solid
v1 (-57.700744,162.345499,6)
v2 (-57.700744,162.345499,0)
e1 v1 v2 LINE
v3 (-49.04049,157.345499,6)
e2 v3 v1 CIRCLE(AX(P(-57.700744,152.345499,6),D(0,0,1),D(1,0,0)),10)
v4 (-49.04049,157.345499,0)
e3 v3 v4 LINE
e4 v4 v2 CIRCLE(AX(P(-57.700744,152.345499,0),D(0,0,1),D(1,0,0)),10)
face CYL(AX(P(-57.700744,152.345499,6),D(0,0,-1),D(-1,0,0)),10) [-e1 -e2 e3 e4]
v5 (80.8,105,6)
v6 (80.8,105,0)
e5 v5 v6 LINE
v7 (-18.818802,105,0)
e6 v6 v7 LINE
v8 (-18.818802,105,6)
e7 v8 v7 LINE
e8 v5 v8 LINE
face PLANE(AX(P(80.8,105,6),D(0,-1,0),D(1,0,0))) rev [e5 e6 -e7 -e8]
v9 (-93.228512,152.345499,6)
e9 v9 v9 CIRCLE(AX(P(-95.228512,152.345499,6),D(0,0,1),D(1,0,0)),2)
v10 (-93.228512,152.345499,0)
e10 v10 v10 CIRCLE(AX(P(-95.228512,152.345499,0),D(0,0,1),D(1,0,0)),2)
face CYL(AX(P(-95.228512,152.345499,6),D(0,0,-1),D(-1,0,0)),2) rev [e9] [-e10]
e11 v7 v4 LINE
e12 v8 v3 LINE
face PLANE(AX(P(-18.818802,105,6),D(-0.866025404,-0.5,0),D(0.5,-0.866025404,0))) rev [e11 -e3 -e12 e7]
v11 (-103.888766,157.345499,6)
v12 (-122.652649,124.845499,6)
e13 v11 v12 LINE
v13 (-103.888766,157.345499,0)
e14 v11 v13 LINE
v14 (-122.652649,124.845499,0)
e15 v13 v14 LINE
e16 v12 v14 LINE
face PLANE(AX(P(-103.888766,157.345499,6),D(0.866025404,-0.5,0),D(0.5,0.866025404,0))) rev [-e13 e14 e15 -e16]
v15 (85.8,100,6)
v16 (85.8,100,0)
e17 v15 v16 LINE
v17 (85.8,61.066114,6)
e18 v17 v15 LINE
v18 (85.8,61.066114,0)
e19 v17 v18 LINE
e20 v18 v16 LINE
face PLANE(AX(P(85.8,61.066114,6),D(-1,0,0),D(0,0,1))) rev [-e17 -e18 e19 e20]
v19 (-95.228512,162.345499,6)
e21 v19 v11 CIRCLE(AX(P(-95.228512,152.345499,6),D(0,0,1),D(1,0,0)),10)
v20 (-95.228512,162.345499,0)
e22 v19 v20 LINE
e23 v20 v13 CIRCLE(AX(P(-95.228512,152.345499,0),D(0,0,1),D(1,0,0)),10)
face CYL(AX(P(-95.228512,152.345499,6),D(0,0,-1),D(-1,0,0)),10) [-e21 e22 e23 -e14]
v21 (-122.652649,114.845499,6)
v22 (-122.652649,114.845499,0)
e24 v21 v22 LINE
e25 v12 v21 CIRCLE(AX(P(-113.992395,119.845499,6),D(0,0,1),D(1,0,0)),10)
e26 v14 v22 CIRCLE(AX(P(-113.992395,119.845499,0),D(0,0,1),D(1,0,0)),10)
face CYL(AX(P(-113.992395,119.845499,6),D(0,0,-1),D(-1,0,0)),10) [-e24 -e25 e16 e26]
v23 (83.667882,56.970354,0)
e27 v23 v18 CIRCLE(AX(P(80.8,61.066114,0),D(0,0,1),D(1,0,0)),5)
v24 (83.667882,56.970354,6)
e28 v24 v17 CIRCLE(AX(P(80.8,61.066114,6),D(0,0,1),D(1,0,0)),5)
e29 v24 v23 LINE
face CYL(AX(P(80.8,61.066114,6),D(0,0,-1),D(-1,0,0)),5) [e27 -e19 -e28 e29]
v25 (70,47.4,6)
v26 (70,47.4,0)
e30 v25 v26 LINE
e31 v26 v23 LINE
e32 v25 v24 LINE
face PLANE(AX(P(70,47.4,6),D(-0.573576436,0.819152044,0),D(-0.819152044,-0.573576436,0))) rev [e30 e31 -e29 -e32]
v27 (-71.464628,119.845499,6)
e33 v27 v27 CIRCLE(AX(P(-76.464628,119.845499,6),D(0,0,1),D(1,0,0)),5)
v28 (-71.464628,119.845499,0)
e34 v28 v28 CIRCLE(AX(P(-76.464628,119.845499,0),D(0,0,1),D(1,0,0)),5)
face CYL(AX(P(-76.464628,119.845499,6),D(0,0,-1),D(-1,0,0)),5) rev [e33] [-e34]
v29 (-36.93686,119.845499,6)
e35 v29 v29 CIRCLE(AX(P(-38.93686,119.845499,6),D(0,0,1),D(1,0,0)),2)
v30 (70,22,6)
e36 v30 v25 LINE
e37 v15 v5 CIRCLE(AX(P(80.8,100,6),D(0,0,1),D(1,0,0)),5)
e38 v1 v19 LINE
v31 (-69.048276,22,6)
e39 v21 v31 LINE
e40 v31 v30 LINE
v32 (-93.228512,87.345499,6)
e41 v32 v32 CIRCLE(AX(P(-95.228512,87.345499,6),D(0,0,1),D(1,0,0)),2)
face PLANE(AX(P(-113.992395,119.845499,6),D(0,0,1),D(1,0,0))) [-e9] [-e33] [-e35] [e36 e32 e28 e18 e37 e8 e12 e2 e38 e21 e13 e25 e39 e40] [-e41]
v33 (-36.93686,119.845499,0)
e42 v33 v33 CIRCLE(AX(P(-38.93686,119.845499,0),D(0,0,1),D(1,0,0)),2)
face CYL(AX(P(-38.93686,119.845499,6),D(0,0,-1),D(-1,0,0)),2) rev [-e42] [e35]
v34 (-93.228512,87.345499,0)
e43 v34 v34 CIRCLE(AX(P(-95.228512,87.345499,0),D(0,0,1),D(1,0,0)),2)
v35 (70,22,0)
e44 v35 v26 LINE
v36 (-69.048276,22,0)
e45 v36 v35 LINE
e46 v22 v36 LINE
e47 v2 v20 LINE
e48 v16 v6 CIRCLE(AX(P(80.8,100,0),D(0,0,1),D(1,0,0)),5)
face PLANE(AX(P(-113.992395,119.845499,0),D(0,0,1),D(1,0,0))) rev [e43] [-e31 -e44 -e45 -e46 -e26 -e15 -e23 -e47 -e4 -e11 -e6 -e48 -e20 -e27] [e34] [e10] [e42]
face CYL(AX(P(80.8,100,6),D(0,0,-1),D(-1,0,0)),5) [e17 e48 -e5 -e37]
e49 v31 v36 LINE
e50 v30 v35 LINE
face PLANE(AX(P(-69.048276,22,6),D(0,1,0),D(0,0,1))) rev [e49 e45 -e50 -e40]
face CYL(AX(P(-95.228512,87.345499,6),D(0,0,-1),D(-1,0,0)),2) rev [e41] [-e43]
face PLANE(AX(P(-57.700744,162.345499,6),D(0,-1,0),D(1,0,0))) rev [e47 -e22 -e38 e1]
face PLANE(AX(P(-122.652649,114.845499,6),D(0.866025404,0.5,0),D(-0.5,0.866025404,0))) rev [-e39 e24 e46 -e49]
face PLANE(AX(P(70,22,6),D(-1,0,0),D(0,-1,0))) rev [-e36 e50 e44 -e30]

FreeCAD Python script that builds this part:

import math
import FreeCAD as App
import Part
import Sketcher
Q = App.Units.Quantity

doc = App.newDocument("Part")
params = doc.addObject("Spreadsheet::Sheet", "Params")
for row, (alias, value) in enumerate([
    ("sketch1_diameter", "4 mm"),
    ("sketch1_diameter2", "10 mm"),
    ("sketch1_radius", "10 mm"),
    ("sketch1_height", "25.4 mm"),
    ("pad1_length", "6 mm"),
], start=1):
    params.set(f"A{row}", alias)
    params.set(f"B{row}", "=" + value)
    params.setAlias(f"B{row}", alias)

body = doc.addObject("PartDesign::Body", "Body")

# Sketch on XY plane
sketch1 = doc.addObject("Sketcher::SketchObject", "Sketch")
body.addObject(sketch1)
sketch1.AttachmentSupport = (doc.XY_Plane, [""])
sketch1.MapMode = "FlatFace"
sketch1.addGeometry(Part.LineSegment(App.Vector(-122.7, 114.8, 0), App.Vector(-69, 22, 0)), False)
sketch1.addGeometry(Part.LineSegment(App.Vector(-69, 22, 0), App.Vector(70, 22, 0)), False)
sketch1.addGeometry(Part.LineSegment(App.Vector(70, 22, 0), App.Vector(70, 47.4, 0)), False)
sketch1.addGeometry(Part.LineSegment(App.Vector(70, 47.4, 0), App.Vector(83.7, 57, 0)), False)
sketch1.addGeometry(Part.ArcOfCircle(Part.Circle(App.Vector(80.8, 61.1, 0), App.Vector(0, 0, 1), 5), math.radians(-55), math.radians(0)), False)
sketch1.addGeometry(Part.LineSegment(App.Vector(85.8, 61.1, 0), App.Vector(85.8, 100, 0)), False)
sketch1.addGeometry(Part.ArcOfCircle(Part.Circle(App.Vector(80.8, 100, 0), App.Vector(0, 0, 1), 5), math.radians(0), math.radians(90)), False)
sketch1.addGeometry(Part.LineSegment(App.Vector(80.8, 105, 0), App.Vector(-18.8, 105, 0)), False)
sketch1.addGeometry(Part.LineSegment(App.Vector(-18.8, 105, 0), App.Vector(-49, 157.3, 0)), False)
sketch1.addGeometry(Part.ArcOfCircle(Part.Circle(App.Vector(-57.7, 152.3, 0), App.Vector(0, 0, 1), 10), math.radians(30), math.radians(90)), False)
sketch1.addGeometry(Part.LineSegment(App.Vector(-57.7, 162.3, 0), App.Vector(-95.2, 162.3, 0)), False)
sketch1.addGeometry(Part.ArcOfCircle(Part.Circle(App.Vector(-95.2, 152.3, 0), App.Vector(0, 0, 1), 10), math.radians(90), math.radians(150)), False)
sketch1.addGeometry(Part.LineSegment(App.Vector(-103.9, 157.3, 0), App.Vector(-122.7, 124.8, 0)), False)
sketch1.addGeometry(Part.ArcOfCircle(Part.Circle(App.Vector(-114, 119.8, 0), App.Vector(0, 0, 1), 10), math.radians(150), math.radians(210)), False)
sketch1.addGeometry(Part.Circle(App.Vector(-95.2, 87.3, 0), App.Vector(0, 0, 1), 2), False)
sketch1.addGeometry(Part.Circle(App.Vector(-76.5, 119.8, 0), App.Vector(0, 0, 1), 5), False)
sketch1.addGeometry(Part.Circle(App.Vector(-38.9, 119.8, 0), App.Vector(0, 0, 1), 2), False)
sketch1.addGeometry(Part.Circle(App.Vector(-95.2, 152.3, 0), App.Vector(0, 0, 1), 2), False)
sketch1.addConstraint(Sketcher.Constraint("Coincident", 0, 2, 1, 1))
sketch1.addConstraint(Sketcher.Constraint("Coincident", 1, 2, 2, 1))
sketch1.addConstraint(Sketcher.Constraint("Coincident", 2, 2, 3, 1))
sketch1.addConstraint(Sketcher.Constraint("Tangent", 3, 2, 4, 1))
sketch1.addConstraint(Sketcher.Constraint("Tangent", 4, 2, 5, 1))
sketch1.addConstraint(Sketcher.Constraint("Tangent", 5, 2, 6, 1))
sketch1.addConstraint(Sketcher.Constraint("Tangent", 6, 2, 7, 1))
sketch1.addConstraint(Sketcher.Constraint("Coincident", 7, 2, 8, 1))
sketch1.addConstraint(Sketcher.Constraint("Tangent", 8, 2, 9, 1))
sketch1.addConstraint(Sketcher.Constraint("Tangent", 9, 2, 10, 1))
sketch1.addConstraint(Sketcher.Constraint("Tangent", 10, 2, 11, 1))
sketch1.addConstraint(Sketcher.Constraint("Tangent", 11, 2, 12, 1))
sketch1.addConstraint(Sketcher.Constraint("Tangent", 12, 2, 13, 1))
sketch1.addConstraint(Sketcher.Constraint("Tangent", 13, 2, 0, 1))
sketch1.addConstraint(Sketcher.Constraint("Horizontal", 1))
sketch1.addConstraint(Sketcher.Constraint("Vertical", 2))
sketch1.addConstraint(Sketcher.Constraint("Vertical", 5))
sketch1.addConstraint(Sketcher.Constraint("Horizontal", 7))
sketch1.addConstraint(Sketcher.Constraint("Horizontal", 10))
sketch1.addConstraint(Sketcher.Constraint("Coincident", 17, 3, 11, 3))
sketch1.addConstraint(Sketcher.Constraint("Equal", 4, 6))
sketch1.addConstraint(Sketcher.Constraint("Equal", 9, 11))
sketch1.addConstraint(Sketcher.Constraint("Equal", 11, 13))
sketch1.addConstraint(Sketcher.Constraint("Equal", 6, 15))
sketch1.addConstraint(Sketcher.Constraint("Equal", 14, 16))
sketch1.addConstraint(Sketcher.Constraint("Equal", 16, 17))
sketch1.addConstraint(Sketcher.Constraint("Parallel", 0, 8))
sketch1.addConstraint(Sketcher.Constraint("Horizontal", 13, 3, 15, 3))
sketch1.addConstraint(Sketcher.Constraint("Horizontal", 15, 3, 16, 3))
sketch1.addConstraint(Sketcher.Constraint("Horizontal", 8, 2, 11, 2))
sketch1.addConstraint(Sketcher.Constraint("Vertical", 11, 3, 14, 3))
sketch1.addConstraint(Sketcher.Constraint("Diameter", 14, 4.0))
sketch1.addConstraint(Sketcher.Constraint("Diameter", 15, 10.0))
sketch1.addConstraint(Sketcher.Constraint("Radius", 9, 10.0))
sketch1.addConstraint(Sketcher.Constraint("Angle", 0, Q("-60 deg")))
sketch1.addConstraint(Sketcher.Constraint("Angle", 3, Q("35 deg")))
sketch1.addConstraint(Sketcher.Constraint("DistanceY", 2, 1, 2, 2, 25.4))
sketch1.addConstraint(Sketcher.Constraint("DistanceY", -1, 1, 6, 3, 100.0))
sketch1.addConstraint(Sketcher.Constraint("DistanceY", -1, 1, 0, 2, 22.0))
sketch1.addConstraint(Sketcher.Constraint("DistanceX", -1, 1, 1, 2, 70.0))
sketch1.addConstraint(Sketcher.Constraint("DistanceY", 14, 3, 11, 3, 65.0))
sketch1.addConstraint(Sketcher.Constraint("DistanceX", -1, 1, 4, 3, 80.8))
sketch1.addConstraint(Sketcher.Constraint("DistanceY", 13, 3, 11, 3, 32.5))
sketch1.addConstraint(Sketcher.Constraint("DistanceY", -1, 1, 9, 3, 152.345499))
sketch1.addConstraint(Sketcher.Constraint("DistanceX", 1, 1, 1, 2, 139.048276))
sketch1.addConstraint(Sketcher.Constraint("DistanceX", 7, 2, 7, 1, 99.618802))
sketch1.addConstraint(Sketcher.Constraint("DistanceX", 16, 3, -1, 1, 38.93686))
sketch1.addConstraint(Sketcher.Constraint("DistanceX", 12, 2, 15, 3, 46.188022))
sketch1.setExpression("Constraints[31]", "Params.sketch1_diameter")
sketch1.setExpression("Constraints[32]", "Params.sketch1_diameter2")
sketch1.setExpression("Constraints[33]", "Params.sketch1_radius")
sketch1.setExpression("Constraints[36]", "Params.sketch1_height")
pad1 = doc.addObject("PartDesign::Pad", "Pad")
body.addObject(pad1)
pad1.Profile = sketch1
pad1.setExpression("Length", "Params.pad1_length")

doc.recompute()
